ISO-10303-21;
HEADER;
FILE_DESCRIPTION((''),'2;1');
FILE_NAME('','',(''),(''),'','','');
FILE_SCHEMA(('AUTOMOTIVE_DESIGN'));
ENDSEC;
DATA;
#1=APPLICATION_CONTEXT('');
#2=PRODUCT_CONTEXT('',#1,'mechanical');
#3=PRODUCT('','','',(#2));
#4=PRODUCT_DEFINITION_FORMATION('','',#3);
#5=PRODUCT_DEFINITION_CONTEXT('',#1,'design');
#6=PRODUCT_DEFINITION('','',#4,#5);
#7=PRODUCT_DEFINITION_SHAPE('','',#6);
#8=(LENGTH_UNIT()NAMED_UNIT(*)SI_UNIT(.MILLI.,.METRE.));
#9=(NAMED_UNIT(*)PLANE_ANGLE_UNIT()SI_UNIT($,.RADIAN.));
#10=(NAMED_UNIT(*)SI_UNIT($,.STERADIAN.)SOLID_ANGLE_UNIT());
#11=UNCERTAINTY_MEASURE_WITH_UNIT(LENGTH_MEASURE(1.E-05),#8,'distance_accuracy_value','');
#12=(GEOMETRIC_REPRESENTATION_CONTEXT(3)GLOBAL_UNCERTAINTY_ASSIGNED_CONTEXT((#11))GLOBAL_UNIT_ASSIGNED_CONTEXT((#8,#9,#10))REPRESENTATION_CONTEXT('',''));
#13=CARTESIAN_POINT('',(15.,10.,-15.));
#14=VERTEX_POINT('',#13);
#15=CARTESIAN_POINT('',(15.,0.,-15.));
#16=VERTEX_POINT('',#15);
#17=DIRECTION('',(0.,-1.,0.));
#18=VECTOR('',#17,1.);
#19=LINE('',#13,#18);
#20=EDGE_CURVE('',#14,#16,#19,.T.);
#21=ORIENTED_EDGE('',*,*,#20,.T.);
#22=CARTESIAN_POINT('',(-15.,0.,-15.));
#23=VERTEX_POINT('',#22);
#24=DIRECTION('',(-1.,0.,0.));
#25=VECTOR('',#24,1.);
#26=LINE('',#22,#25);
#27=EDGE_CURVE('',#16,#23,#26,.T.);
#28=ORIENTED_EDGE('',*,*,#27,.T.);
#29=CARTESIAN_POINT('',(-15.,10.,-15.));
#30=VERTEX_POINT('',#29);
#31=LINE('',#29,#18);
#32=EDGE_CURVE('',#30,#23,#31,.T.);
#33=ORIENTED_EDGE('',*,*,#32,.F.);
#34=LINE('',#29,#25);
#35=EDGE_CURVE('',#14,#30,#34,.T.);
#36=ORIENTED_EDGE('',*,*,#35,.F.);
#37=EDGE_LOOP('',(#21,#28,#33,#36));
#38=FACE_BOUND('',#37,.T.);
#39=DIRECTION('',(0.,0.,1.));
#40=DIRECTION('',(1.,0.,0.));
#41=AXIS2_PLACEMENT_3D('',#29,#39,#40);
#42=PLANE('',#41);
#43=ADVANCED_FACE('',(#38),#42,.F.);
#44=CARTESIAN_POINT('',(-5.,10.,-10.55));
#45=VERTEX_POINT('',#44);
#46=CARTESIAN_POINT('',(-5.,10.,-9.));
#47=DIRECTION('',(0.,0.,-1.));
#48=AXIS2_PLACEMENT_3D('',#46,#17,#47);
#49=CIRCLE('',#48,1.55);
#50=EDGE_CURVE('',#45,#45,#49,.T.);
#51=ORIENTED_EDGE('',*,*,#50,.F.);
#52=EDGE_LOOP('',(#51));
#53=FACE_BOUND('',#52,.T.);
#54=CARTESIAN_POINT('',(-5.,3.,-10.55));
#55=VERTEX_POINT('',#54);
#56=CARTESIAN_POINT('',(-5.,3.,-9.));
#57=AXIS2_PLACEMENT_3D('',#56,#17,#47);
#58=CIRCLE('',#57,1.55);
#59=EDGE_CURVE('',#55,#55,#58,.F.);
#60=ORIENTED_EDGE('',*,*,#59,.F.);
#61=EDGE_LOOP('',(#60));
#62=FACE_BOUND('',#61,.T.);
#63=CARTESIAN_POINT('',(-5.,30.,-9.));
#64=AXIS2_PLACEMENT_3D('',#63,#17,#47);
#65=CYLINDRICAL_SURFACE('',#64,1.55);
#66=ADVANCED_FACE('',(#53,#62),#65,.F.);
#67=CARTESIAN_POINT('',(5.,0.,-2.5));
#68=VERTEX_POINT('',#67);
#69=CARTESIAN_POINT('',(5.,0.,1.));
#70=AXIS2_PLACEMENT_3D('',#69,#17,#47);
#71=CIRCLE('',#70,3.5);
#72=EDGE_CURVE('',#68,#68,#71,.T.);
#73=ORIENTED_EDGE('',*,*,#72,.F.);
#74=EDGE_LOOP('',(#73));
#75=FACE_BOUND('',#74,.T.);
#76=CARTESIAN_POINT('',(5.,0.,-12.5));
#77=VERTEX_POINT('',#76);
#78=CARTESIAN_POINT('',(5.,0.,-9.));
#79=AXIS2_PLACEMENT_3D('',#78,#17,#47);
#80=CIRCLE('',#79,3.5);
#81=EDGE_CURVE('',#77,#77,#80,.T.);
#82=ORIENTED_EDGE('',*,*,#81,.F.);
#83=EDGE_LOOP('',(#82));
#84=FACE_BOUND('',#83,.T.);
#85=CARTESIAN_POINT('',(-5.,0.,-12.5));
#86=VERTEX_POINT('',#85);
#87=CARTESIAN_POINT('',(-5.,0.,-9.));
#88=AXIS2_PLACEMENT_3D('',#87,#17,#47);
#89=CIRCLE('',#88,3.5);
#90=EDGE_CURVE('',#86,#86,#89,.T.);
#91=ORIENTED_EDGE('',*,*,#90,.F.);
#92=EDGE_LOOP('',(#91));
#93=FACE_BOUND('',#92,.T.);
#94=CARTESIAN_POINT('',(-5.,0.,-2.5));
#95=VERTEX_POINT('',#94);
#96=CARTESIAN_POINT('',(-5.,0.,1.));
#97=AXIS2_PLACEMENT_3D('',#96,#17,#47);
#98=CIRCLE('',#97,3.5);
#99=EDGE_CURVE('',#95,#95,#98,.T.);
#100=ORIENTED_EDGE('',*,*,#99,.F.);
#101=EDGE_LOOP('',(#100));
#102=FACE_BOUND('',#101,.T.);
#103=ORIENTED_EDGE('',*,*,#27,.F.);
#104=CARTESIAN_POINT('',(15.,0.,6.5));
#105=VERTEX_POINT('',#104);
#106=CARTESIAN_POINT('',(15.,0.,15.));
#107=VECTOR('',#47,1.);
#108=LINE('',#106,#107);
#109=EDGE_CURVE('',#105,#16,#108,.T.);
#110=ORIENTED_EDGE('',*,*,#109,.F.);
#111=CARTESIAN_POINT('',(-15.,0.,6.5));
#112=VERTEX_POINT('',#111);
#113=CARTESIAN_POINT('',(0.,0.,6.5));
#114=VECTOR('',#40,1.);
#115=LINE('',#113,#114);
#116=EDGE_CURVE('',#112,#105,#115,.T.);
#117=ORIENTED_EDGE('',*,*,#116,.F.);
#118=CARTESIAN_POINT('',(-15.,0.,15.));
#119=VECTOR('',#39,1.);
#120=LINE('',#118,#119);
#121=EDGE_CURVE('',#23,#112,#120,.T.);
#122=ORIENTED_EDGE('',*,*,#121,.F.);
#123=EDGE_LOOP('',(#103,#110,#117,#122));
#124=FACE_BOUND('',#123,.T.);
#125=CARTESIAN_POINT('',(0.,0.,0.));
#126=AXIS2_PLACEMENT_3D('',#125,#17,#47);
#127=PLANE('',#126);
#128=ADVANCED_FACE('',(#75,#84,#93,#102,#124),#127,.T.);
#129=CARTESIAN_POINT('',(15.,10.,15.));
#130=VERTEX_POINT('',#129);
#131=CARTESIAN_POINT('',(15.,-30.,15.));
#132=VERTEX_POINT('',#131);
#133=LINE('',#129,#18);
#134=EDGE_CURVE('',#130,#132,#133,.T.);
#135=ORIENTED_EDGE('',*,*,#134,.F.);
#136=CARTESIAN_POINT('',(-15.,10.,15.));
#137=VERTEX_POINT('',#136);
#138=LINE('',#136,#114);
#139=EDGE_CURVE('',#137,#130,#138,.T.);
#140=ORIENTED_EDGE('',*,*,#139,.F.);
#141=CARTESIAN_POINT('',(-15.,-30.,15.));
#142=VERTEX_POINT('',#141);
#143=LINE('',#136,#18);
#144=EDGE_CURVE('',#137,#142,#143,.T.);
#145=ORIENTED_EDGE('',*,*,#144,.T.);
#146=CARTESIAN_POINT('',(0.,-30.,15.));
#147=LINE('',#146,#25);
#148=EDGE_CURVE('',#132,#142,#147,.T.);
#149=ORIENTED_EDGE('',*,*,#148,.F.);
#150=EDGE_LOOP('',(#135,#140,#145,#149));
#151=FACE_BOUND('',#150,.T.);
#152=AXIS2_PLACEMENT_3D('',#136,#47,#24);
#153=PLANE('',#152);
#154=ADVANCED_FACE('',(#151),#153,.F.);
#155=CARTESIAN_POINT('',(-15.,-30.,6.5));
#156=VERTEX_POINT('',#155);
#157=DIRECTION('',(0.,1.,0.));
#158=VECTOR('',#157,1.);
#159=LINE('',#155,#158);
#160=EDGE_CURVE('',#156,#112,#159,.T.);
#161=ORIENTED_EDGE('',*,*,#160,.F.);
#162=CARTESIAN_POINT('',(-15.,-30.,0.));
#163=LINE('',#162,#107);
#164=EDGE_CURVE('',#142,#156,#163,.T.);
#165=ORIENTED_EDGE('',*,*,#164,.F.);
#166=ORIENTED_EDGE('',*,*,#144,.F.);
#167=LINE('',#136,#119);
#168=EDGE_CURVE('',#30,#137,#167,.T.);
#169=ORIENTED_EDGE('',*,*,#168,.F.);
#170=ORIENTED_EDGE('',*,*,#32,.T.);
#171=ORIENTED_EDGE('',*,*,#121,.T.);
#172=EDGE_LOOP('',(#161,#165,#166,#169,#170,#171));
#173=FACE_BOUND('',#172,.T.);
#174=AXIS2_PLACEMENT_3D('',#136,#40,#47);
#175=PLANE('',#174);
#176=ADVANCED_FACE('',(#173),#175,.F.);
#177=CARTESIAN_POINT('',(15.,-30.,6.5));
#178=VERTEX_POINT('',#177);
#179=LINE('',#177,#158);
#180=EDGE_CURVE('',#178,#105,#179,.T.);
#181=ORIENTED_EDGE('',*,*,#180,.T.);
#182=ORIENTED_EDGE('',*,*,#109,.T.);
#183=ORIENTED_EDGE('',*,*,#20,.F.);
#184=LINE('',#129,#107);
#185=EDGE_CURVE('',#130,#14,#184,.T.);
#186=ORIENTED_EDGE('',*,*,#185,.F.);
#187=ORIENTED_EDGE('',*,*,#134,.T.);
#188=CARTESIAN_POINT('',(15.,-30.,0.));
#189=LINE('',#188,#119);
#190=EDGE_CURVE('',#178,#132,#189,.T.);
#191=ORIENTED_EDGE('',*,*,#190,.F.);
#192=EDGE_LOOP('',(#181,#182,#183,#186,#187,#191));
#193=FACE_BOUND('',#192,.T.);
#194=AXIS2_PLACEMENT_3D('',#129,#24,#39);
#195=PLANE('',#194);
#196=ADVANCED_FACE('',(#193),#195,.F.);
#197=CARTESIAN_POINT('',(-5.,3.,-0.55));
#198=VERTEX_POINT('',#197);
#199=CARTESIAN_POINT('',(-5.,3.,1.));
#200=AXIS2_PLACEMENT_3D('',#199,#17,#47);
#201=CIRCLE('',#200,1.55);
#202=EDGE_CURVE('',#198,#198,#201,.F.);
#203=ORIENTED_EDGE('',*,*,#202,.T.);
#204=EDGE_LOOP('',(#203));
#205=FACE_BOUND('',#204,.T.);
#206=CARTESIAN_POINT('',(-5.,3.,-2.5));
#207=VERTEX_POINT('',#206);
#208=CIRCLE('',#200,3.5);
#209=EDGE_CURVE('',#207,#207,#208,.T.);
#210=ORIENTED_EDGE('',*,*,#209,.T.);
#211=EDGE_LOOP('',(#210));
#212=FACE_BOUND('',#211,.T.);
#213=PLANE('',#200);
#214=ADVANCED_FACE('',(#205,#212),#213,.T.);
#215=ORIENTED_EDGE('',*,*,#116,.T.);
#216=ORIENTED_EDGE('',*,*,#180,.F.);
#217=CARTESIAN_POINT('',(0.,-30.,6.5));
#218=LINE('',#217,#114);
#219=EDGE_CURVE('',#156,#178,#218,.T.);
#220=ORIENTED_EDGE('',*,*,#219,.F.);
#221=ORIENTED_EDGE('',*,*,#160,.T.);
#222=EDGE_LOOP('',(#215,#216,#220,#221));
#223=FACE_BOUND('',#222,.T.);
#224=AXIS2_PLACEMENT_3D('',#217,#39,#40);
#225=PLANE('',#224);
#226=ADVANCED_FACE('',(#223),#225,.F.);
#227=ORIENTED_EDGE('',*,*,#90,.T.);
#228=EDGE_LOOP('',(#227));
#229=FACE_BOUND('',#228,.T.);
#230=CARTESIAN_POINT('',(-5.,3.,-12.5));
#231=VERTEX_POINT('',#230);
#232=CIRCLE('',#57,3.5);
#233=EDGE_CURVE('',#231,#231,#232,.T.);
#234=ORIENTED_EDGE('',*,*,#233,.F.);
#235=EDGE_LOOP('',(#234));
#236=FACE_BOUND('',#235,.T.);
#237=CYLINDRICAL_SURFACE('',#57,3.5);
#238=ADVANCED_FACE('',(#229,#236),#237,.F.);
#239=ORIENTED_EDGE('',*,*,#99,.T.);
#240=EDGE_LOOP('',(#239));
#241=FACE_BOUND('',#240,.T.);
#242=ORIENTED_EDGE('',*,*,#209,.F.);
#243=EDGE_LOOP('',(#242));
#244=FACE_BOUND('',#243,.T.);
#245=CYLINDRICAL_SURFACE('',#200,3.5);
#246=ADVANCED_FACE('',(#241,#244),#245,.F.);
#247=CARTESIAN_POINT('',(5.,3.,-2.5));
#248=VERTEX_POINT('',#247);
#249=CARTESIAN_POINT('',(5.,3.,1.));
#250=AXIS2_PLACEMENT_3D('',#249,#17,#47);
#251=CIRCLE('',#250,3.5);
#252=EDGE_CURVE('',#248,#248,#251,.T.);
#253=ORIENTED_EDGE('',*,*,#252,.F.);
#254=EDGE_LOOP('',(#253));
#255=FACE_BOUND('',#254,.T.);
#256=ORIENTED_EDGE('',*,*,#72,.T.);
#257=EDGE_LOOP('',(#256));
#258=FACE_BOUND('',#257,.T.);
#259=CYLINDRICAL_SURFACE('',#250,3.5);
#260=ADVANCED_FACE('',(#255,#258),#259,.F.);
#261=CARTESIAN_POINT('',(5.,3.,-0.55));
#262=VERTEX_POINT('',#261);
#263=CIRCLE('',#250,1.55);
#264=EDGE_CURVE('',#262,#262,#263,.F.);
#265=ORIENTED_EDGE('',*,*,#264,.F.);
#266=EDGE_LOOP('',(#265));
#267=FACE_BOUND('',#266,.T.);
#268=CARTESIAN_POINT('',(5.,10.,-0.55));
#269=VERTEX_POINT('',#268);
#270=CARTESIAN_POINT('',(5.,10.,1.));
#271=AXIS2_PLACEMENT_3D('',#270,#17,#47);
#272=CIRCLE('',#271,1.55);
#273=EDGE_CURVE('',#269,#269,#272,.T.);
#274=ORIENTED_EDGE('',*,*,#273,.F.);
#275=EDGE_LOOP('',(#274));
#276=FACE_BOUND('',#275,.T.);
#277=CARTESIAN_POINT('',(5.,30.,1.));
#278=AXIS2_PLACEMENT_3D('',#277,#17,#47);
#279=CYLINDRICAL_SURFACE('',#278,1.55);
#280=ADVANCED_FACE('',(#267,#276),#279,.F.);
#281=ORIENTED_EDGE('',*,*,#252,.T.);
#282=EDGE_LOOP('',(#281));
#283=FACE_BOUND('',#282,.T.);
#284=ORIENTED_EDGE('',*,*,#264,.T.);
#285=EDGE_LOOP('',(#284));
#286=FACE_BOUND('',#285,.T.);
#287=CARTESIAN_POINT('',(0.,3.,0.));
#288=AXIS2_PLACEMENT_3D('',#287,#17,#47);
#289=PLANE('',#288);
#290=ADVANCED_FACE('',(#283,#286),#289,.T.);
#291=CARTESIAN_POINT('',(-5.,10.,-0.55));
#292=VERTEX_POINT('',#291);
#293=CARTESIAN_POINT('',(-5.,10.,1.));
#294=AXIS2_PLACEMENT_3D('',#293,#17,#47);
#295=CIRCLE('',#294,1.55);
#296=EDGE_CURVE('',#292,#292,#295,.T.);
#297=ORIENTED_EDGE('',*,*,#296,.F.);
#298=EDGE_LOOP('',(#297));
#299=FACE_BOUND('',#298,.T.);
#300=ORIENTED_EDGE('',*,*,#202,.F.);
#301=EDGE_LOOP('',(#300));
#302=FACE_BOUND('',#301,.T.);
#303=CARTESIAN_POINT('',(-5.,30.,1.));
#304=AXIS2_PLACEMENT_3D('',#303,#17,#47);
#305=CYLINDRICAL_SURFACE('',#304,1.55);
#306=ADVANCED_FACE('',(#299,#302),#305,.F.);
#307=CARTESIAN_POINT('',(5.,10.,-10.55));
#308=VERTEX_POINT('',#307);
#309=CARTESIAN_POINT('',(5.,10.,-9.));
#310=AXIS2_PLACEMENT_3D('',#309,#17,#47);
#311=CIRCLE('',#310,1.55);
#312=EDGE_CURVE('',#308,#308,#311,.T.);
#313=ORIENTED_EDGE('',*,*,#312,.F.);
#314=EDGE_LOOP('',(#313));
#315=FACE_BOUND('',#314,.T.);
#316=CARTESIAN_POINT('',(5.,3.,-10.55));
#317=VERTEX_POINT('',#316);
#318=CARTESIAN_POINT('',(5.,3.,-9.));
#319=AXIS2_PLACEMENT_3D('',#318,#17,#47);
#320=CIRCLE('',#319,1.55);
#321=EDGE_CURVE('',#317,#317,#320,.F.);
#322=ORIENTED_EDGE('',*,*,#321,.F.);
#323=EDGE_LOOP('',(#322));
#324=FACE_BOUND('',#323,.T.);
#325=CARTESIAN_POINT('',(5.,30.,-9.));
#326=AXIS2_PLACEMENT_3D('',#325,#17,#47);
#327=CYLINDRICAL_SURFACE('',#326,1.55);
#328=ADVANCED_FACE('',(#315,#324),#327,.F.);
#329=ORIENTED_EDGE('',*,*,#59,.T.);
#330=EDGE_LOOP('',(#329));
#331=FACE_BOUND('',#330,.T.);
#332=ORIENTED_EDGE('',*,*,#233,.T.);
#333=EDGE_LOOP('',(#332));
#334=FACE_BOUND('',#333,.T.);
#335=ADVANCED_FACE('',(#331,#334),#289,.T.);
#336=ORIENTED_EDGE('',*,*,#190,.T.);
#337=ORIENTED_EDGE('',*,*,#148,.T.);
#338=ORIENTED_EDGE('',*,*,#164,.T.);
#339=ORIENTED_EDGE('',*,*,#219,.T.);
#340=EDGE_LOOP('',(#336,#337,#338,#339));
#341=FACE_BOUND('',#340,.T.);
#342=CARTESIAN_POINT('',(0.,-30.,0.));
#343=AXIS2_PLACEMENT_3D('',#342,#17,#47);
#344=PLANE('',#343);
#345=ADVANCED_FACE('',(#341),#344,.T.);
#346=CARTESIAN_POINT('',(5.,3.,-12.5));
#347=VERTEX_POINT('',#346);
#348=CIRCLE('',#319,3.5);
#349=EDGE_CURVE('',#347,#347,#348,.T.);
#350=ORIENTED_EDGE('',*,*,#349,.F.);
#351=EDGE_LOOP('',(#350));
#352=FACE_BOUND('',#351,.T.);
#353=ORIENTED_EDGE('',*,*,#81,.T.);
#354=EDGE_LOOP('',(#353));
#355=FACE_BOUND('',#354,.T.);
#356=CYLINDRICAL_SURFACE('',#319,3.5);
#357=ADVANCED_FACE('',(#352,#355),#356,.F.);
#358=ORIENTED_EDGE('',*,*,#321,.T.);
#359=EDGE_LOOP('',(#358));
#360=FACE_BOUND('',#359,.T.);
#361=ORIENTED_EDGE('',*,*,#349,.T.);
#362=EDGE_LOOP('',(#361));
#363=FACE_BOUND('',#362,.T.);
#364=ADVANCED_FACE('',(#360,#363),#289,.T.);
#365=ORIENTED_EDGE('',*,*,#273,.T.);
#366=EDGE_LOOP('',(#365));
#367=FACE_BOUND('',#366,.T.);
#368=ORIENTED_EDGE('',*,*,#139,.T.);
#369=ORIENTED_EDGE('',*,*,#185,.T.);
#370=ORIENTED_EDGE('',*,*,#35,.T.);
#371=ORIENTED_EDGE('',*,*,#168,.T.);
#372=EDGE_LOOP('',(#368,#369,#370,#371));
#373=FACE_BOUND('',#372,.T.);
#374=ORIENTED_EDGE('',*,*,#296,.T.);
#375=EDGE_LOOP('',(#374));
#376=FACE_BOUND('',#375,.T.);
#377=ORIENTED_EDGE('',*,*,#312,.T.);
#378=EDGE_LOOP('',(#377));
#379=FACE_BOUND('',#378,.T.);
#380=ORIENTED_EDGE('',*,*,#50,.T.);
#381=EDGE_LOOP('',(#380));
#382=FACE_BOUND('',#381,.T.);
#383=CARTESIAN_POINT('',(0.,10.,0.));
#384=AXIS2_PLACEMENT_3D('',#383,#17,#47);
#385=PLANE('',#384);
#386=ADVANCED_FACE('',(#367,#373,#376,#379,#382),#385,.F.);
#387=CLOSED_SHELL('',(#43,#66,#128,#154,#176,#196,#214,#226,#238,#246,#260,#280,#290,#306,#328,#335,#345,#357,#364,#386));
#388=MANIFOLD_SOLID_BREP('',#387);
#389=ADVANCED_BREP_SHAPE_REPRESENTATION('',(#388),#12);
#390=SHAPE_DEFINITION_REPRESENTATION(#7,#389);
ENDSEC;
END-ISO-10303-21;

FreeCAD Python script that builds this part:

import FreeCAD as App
import Part
import Sketcher
from FreeCAD import Vector

doc = App.newDocument("Part")
body = doc.addObject("PartDesign::Body", "Body")

sketch1 = body.newObject("Sketcher::SketchObject", "Sketch")
sketch1.AttachmentSupport = (doc.getObject("XZ_Plane"), [""])
sketch1.MapMode = "FlatFace"
sketch1.addGeometry([
    Part.LineSegment(Vector(-15, -15, 0), Vector(-15, 15, 0)),
    Part.LineSegment(Vector(-15, 15, 0), Vector(15, 15, 0)),
    Part.LineSegment(Vector(15, 15, 0), Vector(15, -15, 0)),
    Part.LineSegment(Vector(15, -15, 0), Vector(-15, -15, 0)),
], False)
sketch1.addConstraint([
    Sketcher.Constraint("Coincident", 0, 2, 1, 1),
    Sketcher.Constraint("Coincident", 1, 2, 2, 1),
    Sketcher.Constraint("Coincident", 2, 2, 3, 1),
    Sketcher.Constraint("Coincident", 3, 2, 0, 1),
    Sketcher.Constraint("Vertical", 0),
    Sketcher.Constraint("Horizontal", 1),
    Sketcher.Constraint("Vertical", 2),
    Sketcher.Constraint("Horizontal", 3),
    Sketcher.Constraint("Symmetric", 0, 2, 2, 2, -1, 1),
    Sketcher.Constraint("Equal", 3, 0),
    Sketcher.Constraint("DistanceX", 1, 1, 1, 2, 30.0),
])
pad1 = body.newObject("PartDesign::Pad", "Pad")
pad1.Profile = sketch1
pad1.Length = 10
pad1.Reversed = True

sketch2 = body.newObject("Sketcher::SketchObject", "Sketch001")
sketch2.AttachmentSupport = (doc.getObject("XZ_Plane"), [""])
sketch2.MapMode = "FlatFace"
sketch2.addGeometry([
    Part.LineSegment(Vector(-15, 6.5, 0), Vector(15, 6.5, 0)),
    Part.LineSegment(Vector(15, 6.5, 0), Vector(15, 15, 0)),
    Part.LineSegment(Vector(15, 15, 0), Vector(-15, 15, 0)),
    Part.LineSegment(Vector(-15, 15, 0), Vector(-15, 6.5, 0)),
], False)
sketch2.addConstraint([
    Sketcher.Constraint("Coincident", 0, 2, 1, 1),
    Sketcher.Constraint("Coincident", 1, 2, 2, 1),
    Sketcher.Constraint("Coincident", 2, 2, 3, 1),
    Sketcher.Constraint("Coincident", 3, 2, 0, 1),
    Sketcher.Constraint("Horizontal", 0),
    Sketcher.Constraint("Vertical", 1),
    Sketcher.Constraint("Horizontal", 2),
    Sketcher.Constraint("Vertical", 3),
    Sketcher.Constraint("DistanceX", 0, 1, 0, 2, 30.0),
    Sketcher.Constraint("DistanceY", 1, 1, 1, 2, 8.5),
    Sketcher.Constraint("DistanceX", -1, 1, 0, 2, 15.0),
    Sketcher.Constraint("DistanceY", -1, 1, 1, 2, 15.0),
])
pad2 = body.newObject("PartDesign::Pad", "Pad001")
pad2.Profile = sketch2
pad2.Length = 30

sketch3 = body.newObject("Sketcher::SketchObject", "Sketch002")
sketch3.AttachmentSupport = (doc.getObject("XZ_Plane"), [""])
sketch3.MapMode = "FlatFace"
sketch3.addGeometry([
    Part.Circle(Vector(5, 1, 0), Vector(0, 0, 1), 1.55),
    Part.Circle(Vector(5, -9, 0), Vector(0, 0, 1), 1.55),
    Part.Circle(Vector(-5, 1, 0), Vector(0, 0, 1), 1.55),
    Part.Circle(Vector(-5, -9, 0), Vector(0, 0, 1), 1.55),
], False)
sketch3.addConstraint([
    Sketcher.Constraint("Equal", 0, 1),
    Sketcher.Constraint("Equal", 1, 2),
    Sketcher.Constraint("Equal", 2, 3),
    Sketcher.Constraint("Symmetric", 0, 3, 2, 3, -2),
    Sketcher.Constraint("Symmetric", 1, 3, 3, 3, -2),
    Sketcher.Constraint("Vertical", 0, 3, 1, 3),
    Sketcher.Constraint("Diameter", 0, 3.1),
    Sketcher.Constraint("DistanceX", -1, 1, 0, 3, 5.0),
    Sketcher.Constraint("DistanceY", -1, 1, 0, 3, 1.0),
    Sketcher.Constraint("DistanceY", 1, 3, -1, 1, 9.0),
])
pocket1 = body.newObject("PartDesign::Pocket", "Pocket")
pocket1.Profile = sketch3
pocket1.Length = 30

sketch4 = body.newObject("Sketcher::SketchObject", "Sketch003")
sketch4.AttachmentSupport = (doc.getObject("XZ_Plane"), [""])
sketch4.MapMode = "FlatFace"
sketch4.addGeometry([
    Part.Circle(Vector(5, 1, 0), Vector(0, 0, 1), 3.5),
    Part.Circle(Vector(5, 1, 0), Vector(0, 0, 1), 1.55),
    Part.Circle(Vector(5, -9, 0), Vector(0, 0, 1), 3.5),
    Part.Circle(Vector(5, -9, 0), Vector(0, 0, 1), 1.55),
    Part.Circle(Vector(-5, -9, 0), Vector(0, 0, 1), 3.5),
    Part.Circle(Vector(-5, -9, 0), Vector(0, 0, 1), 1.55),
    Part.Circle(Vector(-5, 1, 0), Vector(0, 0, 1), 3.5),
], False)
sketch4.addConstraint([
    Sketcher.Constraint("Coincident", 1, 3, 0, 3),
    Sketcher.Constraint("Coincident", 3, 3, 2, 3),
    Sketcher.Constraint("Coincident", 5, 3, 4, 3),
    Sketcher.Constraint("Equal", 0, 2),
    Sketcher.Constraint("Equal", 1, 3),
    Sketcher.Constraint("Equal", 2, 4),
    Sketcher.Constraint("Equal", 3, 5),
    Sketcher.Constraint("Equal", 4, 6),
    Sketcher.Constraint("Symmetric", 2, 3, 4, 3, -2),
    Sketcher.Constraint("Symmetric", 0, 3, 6, 3, -2),
    Sketcher.Constraint("Vertical", 1, 3, 2, 3),
    Sketcher.Constraint("Diameter", 0, 7.0),
    Sketcher.Constraint("Diameter", 1, 3.1),
    Sketcher.Constraint("DistanceX", -1, 1, 0, 3, 5.0),
    Sketcher.Constraint("DistanceY", -1, 1, 0, 3, 1.0),
    Sketcher.Constraint("DistanceY", 2, 3, -1, 1, 9.0),
])
pocket2 = body.newObject("PartDesign::Pocket", "Pocket001")
pocket2.Profile = sketch4
pocket2.Length = 3

doc.recompute()
